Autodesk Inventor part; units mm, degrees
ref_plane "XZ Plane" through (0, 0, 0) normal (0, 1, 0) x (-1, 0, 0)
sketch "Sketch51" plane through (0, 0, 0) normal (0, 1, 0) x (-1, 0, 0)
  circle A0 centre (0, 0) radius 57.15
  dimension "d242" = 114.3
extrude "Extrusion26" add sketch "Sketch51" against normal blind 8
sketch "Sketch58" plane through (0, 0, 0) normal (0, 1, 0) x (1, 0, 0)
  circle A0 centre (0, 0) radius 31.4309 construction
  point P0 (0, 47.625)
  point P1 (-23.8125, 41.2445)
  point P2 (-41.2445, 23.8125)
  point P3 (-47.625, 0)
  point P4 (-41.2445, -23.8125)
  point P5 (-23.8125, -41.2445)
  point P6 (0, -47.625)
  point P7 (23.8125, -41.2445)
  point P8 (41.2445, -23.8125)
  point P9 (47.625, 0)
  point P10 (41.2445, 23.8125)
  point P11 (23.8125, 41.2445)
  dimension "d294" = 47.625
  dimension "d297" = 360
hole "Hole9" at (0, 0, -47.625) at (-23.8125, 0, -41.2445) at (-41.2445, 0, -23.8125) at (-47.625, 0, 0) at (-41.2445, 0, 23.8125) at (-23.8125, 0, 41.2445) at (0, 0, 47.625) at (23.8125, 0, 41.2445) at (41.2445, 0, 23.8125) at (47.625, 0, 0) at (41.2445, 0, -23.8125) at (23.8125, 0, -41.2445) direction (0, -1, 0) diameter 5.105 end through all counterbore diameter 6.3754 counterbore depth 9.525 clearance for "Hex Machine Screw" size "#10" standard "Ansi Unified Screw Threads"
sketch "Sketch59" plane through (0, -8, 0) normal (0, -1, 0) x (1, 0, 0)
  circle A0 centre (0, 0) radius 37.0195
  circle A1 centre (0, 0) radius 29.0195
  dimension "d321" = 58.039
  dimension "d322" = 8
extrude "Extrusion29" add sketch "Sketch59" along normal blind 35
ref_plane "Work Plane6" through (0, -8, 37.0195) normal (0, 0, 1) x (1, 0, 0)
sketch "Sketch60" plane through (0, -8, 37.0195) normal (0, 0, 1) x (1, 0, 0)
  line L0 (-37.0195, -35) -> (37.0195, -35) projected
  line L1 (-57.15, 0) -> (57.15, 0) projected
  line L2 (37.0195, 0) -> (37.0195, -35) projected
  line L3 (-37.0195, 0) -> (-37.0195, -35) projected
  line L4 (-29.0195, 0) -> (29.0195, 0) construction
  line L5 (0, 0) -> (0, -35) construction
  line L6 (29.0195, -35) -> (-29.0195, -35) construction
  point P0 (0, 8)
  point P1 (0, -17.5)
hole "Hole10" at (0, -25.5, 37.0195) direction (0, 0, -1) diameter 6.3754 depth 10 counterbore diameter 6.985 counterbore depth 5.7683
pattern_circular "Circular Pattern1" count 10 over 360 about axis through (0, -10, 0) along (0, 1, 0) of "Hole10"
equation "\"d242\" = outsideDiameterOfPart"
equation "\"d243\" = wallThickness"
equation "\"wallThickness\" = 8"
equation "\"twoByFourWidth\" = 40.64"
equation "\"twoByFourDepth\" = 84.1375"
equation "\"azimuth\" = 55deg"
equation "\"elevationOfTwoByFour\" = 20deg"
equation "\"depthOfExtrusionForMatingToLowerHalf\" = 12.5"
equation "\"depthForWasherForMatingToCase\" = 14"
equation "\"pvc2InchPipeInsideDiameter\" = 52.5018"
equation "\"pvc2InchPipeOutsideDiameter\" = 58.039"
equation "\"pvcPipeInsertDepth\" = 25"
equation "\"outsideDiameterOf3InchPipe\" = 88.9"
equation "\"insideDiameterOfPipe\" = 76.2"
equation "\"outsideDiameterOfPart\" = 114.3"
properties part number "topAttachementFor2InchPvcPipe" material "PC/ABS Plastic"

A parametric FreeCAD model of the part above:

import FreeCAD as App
import Part
import Sketcher

V = App.Vector
Q = App.Units.Quantity

doc = App.newDocument("Part")
body = doc.addObject("PartDesign::Body", "Body")

# Sketch on XZ plane
sketch1 = body.newObject("Sketcher::SketchObject", "Sketch")
sketch1.AttachmentSupport = (doc.getObject("XZ_Plane"), [""])
sketch1.MapMode = "FlatFace"
sketch1.addGeometry(Part.Circle(V(0, 0, 0), V(0, 0, 1), 57.15), False)
sketch1.addConstraint(Sketcher.Constraint("Coincident", 0, 3, -1, 1))
sketch1.addConstraint(Sketcher.Constraint("Diameter", 0, Q("4.5 in")))
pad1 = body.newObject("PartDesign::Pad", "Pad")
pad1.Profile = sketch1
pad1.Length = 8

# Sketch on XZ plane
sketch2 = body.newObject("Sketcher::SketchObject", "Sketch001")
sketch2.AttachmentSupport = (doc.getObject("XZ_Plane"), [""])
sketch2.MapMode = "FlatFace"
sketch2.addGeometry(Part.Circle(V(0, -47.625, 0), V(0, 0, 1), 2.5525), False)
sketch2.addGeometry(Part.Circle(V(-23.8125, -41.2445, 0), V(0, 0, 1), 2.5525), False)
sketch2.addGeometry(Part.Circle(V(-41.2445, -23.8125, 0), V(0, 0, 1), 2.5525), False)
sketch2.addGeometry(Part.Circle(V(-47.625, 0, 0), V(0, 0, 1), 2.5525), False)
sketch2.addGeometry(Part.Circle(V(-41.2445, 23.8125, 0), V(0, 0, 1), 2.5525), False)
sketch2.addGeometry(Part.Circle(V(-23.8125, 41.2445, 0), V(0, 0, 1), 2.5525), False)
sketch2.addGeometry(Part.Circle(V(0, 47.625, 0), V(0, 0, 1), 2.5525), False)
sketch2.addGeometry(Part.Circle(V(23.8125, 41.2445, 0), V(0, 0, 1), 2.5525), False)
sketch2.addGeometry(Part.Circle(V(41.2445, 23.8125, 0), V(0, 0, 1), 2.5525), False)
sketch2.addGeometry(Part.Circle(V(47.625, 0, 0), V(0, 0, 1), 2.5525), False)
sketch2.addGeometry(Part.Circle(V(41.2445, -23.8125, 0), V(0, 0, 1), 2.5525), False)
sketch2.addGeometry(Part.Circle(V(23.8125, -41.2445, 0), V(0, 0, 1), 2.5525), False)
sketch2.addConstraint(Sketcher.Constraint("Equal", 0, 1))
sketch2.addConstraint(Sketcher.Constraint("Equal", 1, 2))
sketch2.addConstraint(Sketcher.Constraint("Equal", 2, 3))
sketch2.addConstraint(Sketcher.Constraint("Equal", 3, 4))
sketch2.addConstraint(Sketcher.Constraint("Equal", 4, 5))
sketch2.addConstraint(Sketcher.Constraint("Equal", 5, 6))
sketch2.addConstraint(Sketcher.Constraint("Equal", 6, 7))
sketch2.addConstraint(Sketcher.Constraint("Equal", 7, 8))
sketch2.addConstraint(Sketcher.Constraint("Equal", 8, 9))
sketch2.addConstraint(Sketcher.Constraint("Equal", 9, 10))
sketch2.addConstraint(Sketcher.Constraint("Equal", 10, 11))
sketch2.addConstraint(Sketcher.Constraint("Symmetric", 0, 3, 6, 3, -1, 1))
sketch2.addConstraint(Sketcher.Constraint("Symmetric", 1, 3, 7, 3, -1, 1))
sketch2.addConstraint(Sketcher.Constraint("Symmetric", 2, 3, 8, 3, -1, 1))
sketch2.addConstraint(Sketcher.Constraint("Symmetric", 3, 3, 9, 3, -1, 1))
sketch2.addConstraint(Sketcher.Constraint("Symmetric", 4, 3, 10, 3, -1, 1))
sketch2.addConstraint(Sketcher.Constraint("Symmetric", 5, 3, 11, 3, -1, 1))
sketch2.addConstraint(Sketcher.Constraint("Symmetric", 5, 3, 7, 3, -2))
sketch2.addConstraint(Sketcher.Constraint("Symmetric", 4, 3, 8, 3, -2))
sketch2.addConstraint(Sketcher.Constraint("PointOnObject", 0, 3, -2))
sketch2.addConstraint(Sketcher.Constraint("PointOnObject", 3, 3, -1))
sketch2.addConstraint(Sketcher.Constraint("Diameter", 0, 5.105))
sketch2.addConstraint(Sketcher.Constraint("DistanceY", 0, 3, -1, 1, Q("1.875 in")))
sketch2.addConstraint(Sketcher.Constraint("DistanceX", 1, 3, -1, 1, Q("0.9375 in")))
sketch2.addConstraint(Sketcher.Constraint("DistanceY", 2, 3, -1, 1, Q("0.9375 in")))
sketch2.addConstraint(Sketcher.Constraint("DistanceX", 3, 3, -1, 1, Q("1.875 in")))
sketch2.addConstraint(Sketcher.Constraint("DistanceY", 1, 3, -1, 1, Q("1.6238 in")))
sketch2.addConstraint(Sketcher.Constraint("DistanceX", 2, 3, -1, 1, Q("1.6238 in")))
doc.recompute()
hole = body.newObject("PartDesign::Hole", "Hole")
hole.Profile = sketch2
hole.ThreadType = "None"
hole.Diameter = 5.105
hole.DepthType = "ThroughAll"
hole.HoleCutType = "Counterbore"
hole.HoleCutDiameter = Q("0.251 in")
hole.HoleCutDepth = Q("0.375 in")
hole.Reversed = True

# Sketch on XZ plane
sketch3 = body.newObject("Sketcher::SketchObject", "Sketch002")
sketch3.AttachmentSupport = (doc.getObject("XZ_Plane"), [""])
sketch3.MapMode = "FlatFace"
sketch3.AttachmentOffset = App.Placement(V(0, 0, 8), App.Rotation())
sketch3.addGeometry(Part.Circle(V(0, 0, 0), V(0, 0, 1), 37.0195), False)
sketch3.addGeometry(Part.Circle(V(0, 0, 0), V(0, 0, 1), 29.0195), False)
sketch3.addConstraint(Sketcher.Constraint("Coincident", 0, 3, -1, 1))
sketch3.addConstraint(Sketcher.Constraint("Coincident", 1, 3, -1, 1))
sketch3.addConstraint(Sketcher.Constraint("Diameter", 1, Q("2.285 in")))
sketch3.addConstraint(Sketcher.Constraint("Diameter", 0, 74.039))
pad2 = body.newObject("PartDesign::Pad", "Pad001")
pad2.Profile = sketch3
pad2.Length = 35

# Sketch on XY plane
sketch4 = body.newObject("Sketcher::SketchObject", "Sketch003")
sketch4.AttachmentSupport = (doc.getObject("XY_Plane"), [""])
sketch4.MapMode = "FlatFace"
sketch4.AttachmentOffset = App.Placement(V(0, 0, 37.0195), App.Rotation())
sketch4.addGeometry(Part.Circle(V(0, -25.5, 0), V(0, 0, 1), 3.1877), False)
sketch4.addConstraint(Sketcher.Constraint("PointOnObject", 0, 3, -2))
sketch4.addConstraint(Sketcher.Constraint("Diameter", 0, Q("0.251 in")))
sketch4.addConstraint(Sketcher.Constraint("DistanceY", 0, 3, -1, 1, 25.5))
doc.recompute()
hole2 = body.newObject("PartDesign::Hole", "Hole001")
hole2.Profile = sketch4
hole2.ThreadType = "None"
hole2.Diameter = Q("0.251 in")
hole2.DepthType = "Dimension"
hole2.Depth = Q("0.3937008 in")
hole2.DrillPoint = "Flat"
hole2.HoleCutType = "Counterbore"
hole2.HoleCutDiameter = Q("0.275 in")
hole2.HoleCutDepth = Q("0.2270984 in")
doc.recompute()

polarpattern = body.newObject("PartDesign::PolarPattern", "PolarPattern")
polarpattern.Originals = [hole2]
polarpattern.Axis = (doc.getObject("Y_Axis"), [""])
polarpattern.Angle = 360
polarpattern.Occurrences = 10
body.Tip = polarpattern

doc.recompute()
